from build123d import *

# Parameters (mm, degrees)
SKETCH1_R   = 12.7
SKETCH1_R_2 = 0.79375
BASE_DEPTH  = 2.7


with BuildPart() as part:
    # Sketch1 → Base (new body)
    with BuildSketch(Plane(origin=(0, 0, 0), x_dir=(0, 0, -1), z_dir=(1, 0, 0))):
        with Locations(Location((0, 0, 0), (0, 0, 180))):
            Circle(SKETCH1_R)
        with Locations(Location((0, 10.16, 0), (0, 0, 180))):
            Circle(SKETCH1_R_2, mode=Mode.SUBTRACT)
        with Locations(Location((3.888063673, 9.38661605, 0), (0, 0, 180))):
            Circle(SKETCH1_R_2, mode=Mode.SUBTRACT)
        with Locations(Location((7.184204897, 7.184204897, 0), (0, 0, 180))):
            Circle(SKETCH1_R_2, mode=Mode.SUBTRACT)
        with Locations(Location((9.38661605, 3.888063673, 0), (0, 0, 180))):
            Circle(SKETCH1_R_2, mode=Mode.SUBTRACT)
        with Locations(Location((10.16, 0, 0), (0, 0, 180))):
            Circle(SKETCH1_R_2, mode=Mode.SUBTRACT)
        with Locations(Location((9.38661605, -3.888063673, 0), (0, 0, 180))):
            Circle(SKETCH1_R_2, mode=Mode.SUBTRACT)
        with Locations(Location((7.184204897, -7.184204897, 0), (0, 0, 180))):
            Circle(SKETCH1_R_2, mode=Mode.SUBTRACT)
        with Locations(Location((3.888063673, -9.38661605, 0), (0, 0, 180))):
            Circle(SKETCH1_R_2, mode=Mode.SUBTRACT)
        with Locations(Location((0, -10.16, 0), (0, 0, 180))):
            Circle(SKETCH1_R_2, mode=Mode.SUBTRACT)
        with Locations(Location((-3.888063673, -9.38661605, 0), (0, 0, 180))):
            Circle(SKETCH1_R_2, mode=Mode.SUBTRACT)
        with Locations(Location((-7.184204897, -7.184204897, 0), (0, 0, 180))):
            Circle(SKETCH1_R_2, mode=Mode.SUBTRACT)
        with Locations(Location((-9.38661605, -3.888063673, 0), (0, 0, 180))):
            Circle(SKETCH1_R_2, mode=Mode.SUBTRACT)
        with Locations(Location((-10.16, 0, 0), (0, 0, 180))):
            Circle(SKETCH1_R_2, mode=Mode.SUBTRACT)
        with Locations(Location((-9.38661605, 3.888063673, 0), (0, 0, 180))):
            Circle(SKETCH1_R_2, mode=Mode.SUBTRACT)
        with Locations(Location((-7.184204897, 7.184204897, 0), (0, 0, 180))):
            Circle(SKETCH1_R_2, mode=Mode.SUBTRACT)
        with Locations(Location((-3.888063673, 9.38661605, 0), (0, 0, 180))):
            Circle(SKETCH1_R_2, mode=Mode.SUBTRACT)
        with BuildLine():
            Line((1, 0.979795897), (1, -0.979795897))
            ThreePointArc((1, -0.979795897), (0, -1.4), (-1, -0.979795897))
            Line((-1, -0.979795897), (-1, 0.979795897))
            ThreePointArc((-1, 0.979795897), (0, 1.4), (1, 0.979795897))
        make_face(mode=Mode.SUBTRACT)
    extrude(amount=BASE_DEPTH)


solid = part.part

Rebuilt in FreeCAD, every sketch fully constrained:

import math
import FreeCAD as App
import Part
import Sketcher
from FreeCAD import Vector
Q = App.Units.Quantity

doc = App.newDocument("Part")
body = doc.addObject("PartDesign::Body", "Body")

sketch1 = body.newObject("Sketcher::SketchObject", "Sketch")
sketch1.AttachmentSupport = (doc.getObject("YZ_Plane"), [""])
sketch1.MapMode = "FlatFace"
sketch1.addGeometry([
    Part.Circle(Vector(0, 0, 0), Vector(0, 0, 1), 12.7),
    Part.Circle(Vector(7.2, -7.2, 0), Vector(0, 0, 1), 0.8),
    Part.Circle(Vector(9.4, -3.9, 0), Vector(0, 0, 1), 0.8),
    Part.Circle(Vector(3.9, -9.4, 0), Vector(0, 0, 1), 0.8),
    Part.Circle(Vector(10.2, 0, 0), Vector(0, 0, 1), 0.8),
    Part.Circle(Vector(9.4, 3.9, 0), Vector(0, 0, 1), 0.8),
    Part.Circle(Vector(7.2, 7.2, 0), Vector(0, 0, 1), 0.8),
    Part.Circle(Vector(3.9, 9.4, 0), Vector(0, 0, 1), 0.8),
    Part.Circle(Vector(0, -10.2, 0), Vector(0, 0, 1), 0.8),
    Part.Circle(Vector(-3.9, -9.4, 0), Vector(0, 0, 1), 0.8),
    Part.Circle(Vector(-7.2, -7.2, 0), Vector(0, 0, 1), 0.8),
    Part.Circle(Vector(-9.4, -3.9, 0), Vector(0, 0, 1), 0.8),
    Part.Circle(Vector(-10.2, 0, 0), Vector(0, 0, 1), 0.8),
    Part.ArcOfCircle(Part.Circle(Vector(0, 0, 0), Vector(0, 0, 1), 1.4), math.radians(-46), math.radians(46)),
    Part.LineSegment(Vector(1, -1, 0), Vector(-1, -1, 0)),
    Part.ArcOfCircle(Part.Circle(Vector(0, 0, 0), Vector(0, 0, 1), 1.4), math.radians(134), math.radians(226)),
    Part.LineSegment(Vector(-1, 1, 0), Vector(1, 1, 0)),
    Part.Circle(Vector(0, 10.2, 0), Vector(0, 0, 1), 0.8),
    Part.Circle(Vector(-3.9, 9.4, 0), Vector(0, 0, 1), 0.8),
    Part.Circle(Vector(-9.4, 3.9, 0), Vector(0, 0, 1), 0.8),
    Part.Circle(Vector(-7.2, 7.2, 0), Vector(0, 0, 1), 0.8),
], False)
sketch1.addConstraint([
    Sketcher.Constraint("Coincident", 13, 1, 14, 1),
    Sketcher.Constraint("Coincident", 14, 2, 15, 2),
    Sketcher.Constraint("Coincident", 15, 1, 16, 1),
    Sketcher.Constraint("Coincident", 16, 2, 13, 2),
    Sketcher.Constraint("Horizontal", 14),
    Sketcher.Constraint("Horizontal", 16),
    Sketcher.Constraint("Coincident", 0, 3, -1, 1),
    Sketcher.Constraint("Coincident", 13, 3, -1, 1),
    Sketcher.Constraint("Coincident", 15, 3, -1, 1),
    Sketcher.Constraint("Equal", 1, 2),
    Sketcher.Constraint("Equal", 2, 3),
    Sketcher.Constraint("Equal", 3, 4),
    Sketcher.Constraint("Equal", 4, 5),
    Sketcher.Constraint("Equal", 5, 6),
    Sketcher.Constraint("Equal", 6, 7),
    Sketcher.Constraint("Equal", 7, 8),
    Sketcher.Constraint("Equal", 8, 9),
    Sketcher.Constraint("Equal", 9, 10),
    Sketcher.Constraint("Equal", 10, 11),
    Sketcher.Constraint("Equal", 11, 12),
    Sketcher.Constraint("Equal", 13, 15),
    Sketcher.Constraint("Equal", 12, 17),
    Sketcher.Constraint("Equal", 17, 18),
    Sketcher.Constraint("Equal", 18, 19),
    Sketcher.Constraint("Equal", 19, 20),
    Sketcher.Constraint("Symmetric", 7, 3, 9, 3, -1, 1),
    Sketcher.Constraint("Symmetric", 6, 3, 10, 3, -1, 1),
    Sketcher.Constraint("Symmetric", 5, 3, 11, 3, -1, 1),
    Sketcher.Constraint("Symmetric", 4, 3, 12, 3, -1, 1),
    Sketcher.Constraint("Symmetric", 8, 3, 17, 3, -1, 1),
    Sketcher.Constraint("Symmetric", 3, 3, 18, 3, -1, 1),
    Sketcher.Constraint("Symmetric", 2, 3, 19, 3, -1, 1),
    Sketcher.Constraint("Symmetric", 1, 3, 20, 3, -1, 1),
    Sketcher.Constraint("Symmetric", 3, 3, 9, 3, -2),
    Sketcher.Constraint("Symmetric", 1, 3, 10, 3, -2),
    Sketcher.Constraint("Symmetric", 2, 3, 11, 3, -2),
    Sketcher.Constraint("PointOnObject", 4, 3, -1),
    Sketcher.Constraint("PointOnObject", 8, 3, -2),
    Sketcher.Constraint("Vertical", 14, 2, 15, 1),
    Sketcher.Constraint("Diameter", 0, Q("25.4 mm")),
    Sketcher.Constraint("Radius", 13, Q("1.4 mm")),
    Sketcher.Constraint("DistanceY", 13, 1, -1, 1, Q("1 mm")),
    Sketcher.Constraint("Diameter", 1, Q("1.5875 mm")),
    Sketcher.Constraint("DistanceX", -1, 1, 4, 3, Q("10.16 mm")),
    Sketcher.Constraint("DistanceY", 8, 3, -1, 1, Q("10.16 mm")),
    Sketcher.Constraint("DistanceX", 1, 3, 2, 3, Q("2.202411 mm")),
    Sketcher.Constraint("DistanceY", 1, 3, 2, 3, Q("3.296141 mm")),
    Sketcher.Constraint("DistanceX", 3, 3, 1, 3, Q("3.296141 mm")),
    Sketcher.Constraint("DistanceY", 3, 3, 1, 3, Q("2.202411 mm")),
    Sketcher.Constraint("DistanceY", 1, 3, 5, 3, Q("11.072269 mm")),
    Sketcher.Constraint("DistanceX", 9, 3, 1, 3, Q("11.072269 mm")),
])
pad1 = body.newObject("PartDesign::Pad", "Pad")
pad1.Profile = sketch1
pad1.Length = 2.7

doc.recompute()
